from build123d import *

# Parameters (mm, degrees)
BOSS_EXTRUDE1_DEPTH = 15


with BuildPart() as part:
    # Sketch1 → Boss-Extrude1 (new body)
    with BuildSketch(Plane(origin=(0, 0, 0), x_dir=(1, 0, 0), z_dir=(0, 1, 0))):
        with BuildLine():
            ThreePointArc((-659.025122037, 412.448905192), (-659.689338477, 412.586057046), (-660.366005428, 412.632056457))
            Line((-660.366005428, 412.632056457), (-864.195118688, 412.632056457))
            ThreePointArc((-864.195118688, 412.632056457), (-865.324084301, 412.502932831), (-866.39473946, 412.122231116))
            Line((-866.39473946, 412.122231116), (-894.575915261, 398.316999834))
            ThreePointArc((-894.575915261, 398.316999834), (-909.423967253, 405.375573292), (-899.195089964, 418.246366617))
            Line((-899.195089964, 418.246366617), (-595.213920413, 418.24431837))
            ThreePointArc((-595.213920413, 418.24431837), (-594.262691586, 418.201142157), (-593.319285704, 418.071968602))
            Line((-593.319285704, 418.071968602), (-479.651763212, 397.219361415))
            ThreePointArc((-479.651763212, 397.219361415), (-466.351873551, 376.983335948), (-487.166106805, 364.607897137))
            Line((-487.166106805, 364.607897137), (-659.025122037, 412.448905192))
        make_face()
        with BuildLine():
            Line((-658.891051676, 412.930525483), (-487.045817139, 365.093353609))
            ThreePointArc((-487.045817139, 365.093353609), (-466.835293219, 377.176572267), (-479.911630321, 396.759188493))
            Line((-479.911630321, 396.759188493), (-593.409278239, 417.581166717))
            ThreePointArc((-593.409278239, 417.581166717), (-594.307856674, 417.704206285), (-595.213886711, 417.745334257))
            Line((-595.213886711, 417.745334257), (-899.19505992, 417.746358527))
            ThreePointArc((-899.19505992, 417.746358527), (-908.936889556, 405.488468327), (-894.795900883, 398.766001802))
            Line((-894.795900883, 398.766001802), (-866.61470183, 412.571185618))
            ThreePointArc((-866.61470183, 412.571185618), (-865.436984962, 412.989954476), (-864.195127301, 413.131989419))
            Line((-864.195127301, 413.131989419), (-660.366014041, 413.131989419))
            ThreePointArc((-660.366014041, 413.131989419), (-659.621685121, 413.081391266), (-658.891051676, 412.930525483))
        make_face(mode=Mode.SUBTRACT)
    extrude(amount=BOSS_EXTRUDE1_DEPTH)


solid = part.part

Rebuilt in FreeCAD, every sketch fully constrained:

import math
import FreeCAD as App
import Part
import Sketcher

V = App.Vector

doc = App.newDocument("Part")
body = doc.addObject("PartDesign::Body", "Body")

# Sketch on XZ plane
sketch1 = doc.addObject("Sketcher::SketchObject", "Sketch")
body.addObject(sketch1)
sketch1.AttachmentSupport = (doc.XZ_Plane, [""])
sketch1.MapMode = "FlatFace"
sketch1.addGeometry([
    Part.ArcOfCircle(Part.Circle(V(-660.366005, -407.632056, 0), V(0, 0, 1), 5), math.radians(-90), math.radians(-74.444203)),  # 0
    Part.LineSegment(V(-659.025122, -412.448905, 0), V(-487.166107, -364.607897, 0)),  # 1
    Part.ArcOfCircle(Part.Circle(V(-482.674153, -380.744321, 0), V(0, 0, 1), 16.749979), math.radians(-79.604529), math.radians(105.555797)),  # 2
    Part.LineSegment(V(-479.651763, -397.219361, 0), V(-593.319286, -418.071969, 0)),  # 3
    Part.ArcOfCircle(Part.Circle(V(-595.21392, -407.744318, 0), V(0, 0, 1), 10.5), math.radians(-90), math.radians(-79.604529)),  # 4
    Part.LineSegment(V(-595.21392, -418.244318, 0), V(-899.19509, -418.246367, 0)),  # 5
    Part.ArcOfCircle(Part.Circle(V(-899.195119, -407.746367, 0), V(0, 0, 1), 10.5), math.radians(63.900958), math.radians(270.000158)),  # 6
    Part.LineSegment(V(-894.575915, -398.317, 0), V(-866.394739, -412.122231, 0)),  # 7
    Part.ArcOfCircle(Part.Circle(V(-864.195119, -407.632056, 0), V(0, 0, 1), 5), math.radians(-116.099042), math.radians(-90)),  # 8
    Part.LineSegment(V(-864.195119, -412.632056, 0), V(-660.366005, -412.632056, 0)),  # 9
    Part.ArcOfCircle(Part.Circle(V(-660.366005, -407.632056, 0), V(0, 0, 1), 5.499933), math.radians(-90.00009), math.radians(-74.444203)),  # 10
    Part.LineSegment(V(-660.366014, -413.131989, 0), V(-864.195127, -413.131989, 0)),  # 11
    Part.ArcOfCircle(Part.Circle(V(-864.195127, -407.631989, 0), V(0, 0, 1), 5.5), math.radians(-116.098946), math.radians(-90)),  # 12
    Part.LineSegment(V(-866.614702, -412.571186, 0), V(-894.795901, -398.766002, 0)),  # 13
    Part.ArcOfCircle(Part.Circle(V(-899.195127, -407.746359, 0), V(0, 0, 1), 10), math.radians(63.901055), math.radians(270.000386)),  # 14
    Part.LineSegment(V(-899.19506, -417.746359, 0), V(-595.213887, -417.745334, 0)),  # 15
    Part.ArcOfCircle(Part.Circle(V(-595.21392, -407.744318, 0), V(0, 0, 1), 10.001016), math.radians(-89.999807), math.radians(-79.604268)),  # 16
    Part.LineSegment(V(-593.409278, -417.581167, 0), V(-479.91163, -396.759188, 0)),  # 17
    Part.ArcOfCircle(Part.Circle(V(-482.687946, -380.748112, 0), V(0, 0, 1), 16.25), math.radians(-80.162745), math.radians(105.555797)),  # 18
    Part.LineSegment(V(-487.045817, -365.093354, 0), V(-658.891052, -412.930525, 0)),  # 19
], False)
sketch1.addConstraint([
    Sketcher.Constraint("Coincident", 0, 2, 1, 1),
    Sketcher.Constraint("Coincident", 1, 2, 2, 2),
    Sketcher.Constraint("Coincident", 2, 1, 3, 1),
    Sketcher.Constraint("Coincident", 3, 2, 4, 2),
    Sketcher.Constraint("Coincident", 4, 1, 5, 1),
    Sketcher.Constraint("Coincident", 5, 2, 6, 2),
    Sketcher.Constraint("Coincident", 6, 1, 7, 1),
    Sketcher.Constraint("Coincident", 7, 2, 8, 1),
    Sketcher.Constraint("Coincident", 8, 2, 9, 1),
    Sketcher.Constraint("Coincident", 9, 2, 0, 1),
    Sketcher.Constraint("Coincident", 10, 1, 11, 1),
    Sketcher.Constraint("Coincident", 11, 2, 12, 2),
    Sketcher.Constraint("Coincident", 12, 1, 13, 1),
    Sketcher.Constraint("Coincident", 13, 2, 14, 1),
    Sketcher.Constraint("Coincident", 14, 2, 15, 1),
    Sketcher.Constraint("Coincident", 15, 2, 16, 1),
    Sketcher.Constraint("Coincident", 16, 2, 17, 1),
    Sketcher.Constraint("Coincident", 17, 2, 18, 1),
    Sketcher.Constraint("Coincident", 18, 2, 19, 1),
    Sketcher.Constraint("Coincident", 19, 2, 10, 2),
    Sketcher.Constraint("Horizontal", 9),
    Sketcher.Constraint("Horizontal", 11),
    Sketcher.Constraint("Coincident", 10, 3, 0, 3),
    Sketcher.Constraint("Coincident", 16, 3, 4, 3),
    Sketcher.Constraint("Radius", 0, 5.0),
    Sketcher.Constraint("Radius", 8, 5.0),
    Sketcher.Constraint("Radius", 14, 10.0),
    Sketcher.Constraint("Radius", 4, 10.5),
    Sketcher.Constraint("Radius", 6, 10.5),
    Sketcher.Constraint("Radius", 12, 5.5),
    Sketcher.Constraint("Radius", 18, 16.25),
    Sketcher.Constraint("DistanceX", 6, 3, 8, 3, 35.0),
    Sketcher.Constraint("DistanceX", 14, 3, 12, 3, 35.0),
    Sketcher.Constraint("DistanceX", 6, 3, 8, 2, 35.0),
    Sketcher.Constraint("Radius", 2, 16.749979),
    Sketcher.Constraint("DistanceY", 6, 1, -1, 1, 398.317),
    Sketcher.Constraint("DistanceY", 13, 2, -1, 1, 398.766002),
    Sketcher.Constraint("Radius", 10, 5.499933),
    Sketcher.Constraint("Radius", 16, 10.001016),
    Sketcher.Constraint("DistanceX", 12, 1, -1, 1, 866.614702),
    Sketcher.Constraint("DistanceX", 13, 2, -1, 1, 894.795901),
    Sketcher.Constraint("DistanceX", 6, 3, 4, 3, 303.981198),
    Sketcher.Constraint("DistanceX", 0, 2, 4, 3, 63.811202),
    Sketcher.Constraint("DistanceX", 0, 2, 4, 1, 63.811202),
    Sketcher.Constraint("DistanceX", 15, 2, 3, 2, 1.894601),
    Sketcher.Constraint("DistanceY", 3, 2, 16, 2, 0.490802),
    Sketcher.Constraint("Distance", 1, 178.393619),
    Sketcher.Constraint("Distance", 5, 303.98117),
    Sketcher.Constraint("DistanceX", 9, 1, 9, 2, 203.829113),
    Sketcher.Constraint("DistanceX", 11, 2, 11, 1, 203.829113),
    Sketcher.Constraint("DistanceY", 2, 3, -1, 1, 380.744321),
    Sketcher.Constraint("DistanceX", 4, 3, -1, 1, 595.21392),
    Sketcher.Constraint("DistanceY", 4, 3, -1, 1, 407.744318),
    Sketcher.Constraint("DistanceY", 12, 3, -1, 1, 407.631989),
    Sketcher.Constraint("DistanceY", 14, 3, -1, 1, 407.746359),
    Sketcher.Constraint("DistanceY", 18, 3, -1, 1, 380.748112),
    Sketcher.Constraint("DistanceY", 2, 1, -1, 1, 397.219361),
    Sketcher.Constraint("DistanceY", 3, 2, -1, 1, 418.071969),
    Sketcher.Constraint("DistanceX", 7, 2, -1, 1, 866.394739),
    Sketcher.Constraint("DistanceX", 14, 2, -1, 1, 899.19506),
    Sketcher.Constraint("DistanceX", 17, 2, -1, 1, 479.91163),
    Sketcher.Constraint("DistanceY", 17, 2, -1, 1, 396.759188),
    Sketcher.Constraint("DistanceX", 19, 2, -1, 1, 658.891052),
    Sketcher.Constraint("DistanceY", 6, 3, 0, 3, 0.11431),
    Sketcher.Constraint("DistanceX", 12, 3, 10, 3, 203.829122),
    Sketcher.Constraint("DistanceX", 1, 2, 18, 3, 4.478161),
    Sketcher.Constraint("DistanceX", 1, 2, 18, 2, 0.12029),
    Sketcher.Constraint("DistanceX", 10, 1, -1, 1, 660.366014),
])
pad1 = doc.addObject("PartDesign::Pad", "Pad")
body.addObject(pad1)
pad1.Profile = sketch1
pad1.Length = 15
pad1.Reversed = True

doc.recompute()
